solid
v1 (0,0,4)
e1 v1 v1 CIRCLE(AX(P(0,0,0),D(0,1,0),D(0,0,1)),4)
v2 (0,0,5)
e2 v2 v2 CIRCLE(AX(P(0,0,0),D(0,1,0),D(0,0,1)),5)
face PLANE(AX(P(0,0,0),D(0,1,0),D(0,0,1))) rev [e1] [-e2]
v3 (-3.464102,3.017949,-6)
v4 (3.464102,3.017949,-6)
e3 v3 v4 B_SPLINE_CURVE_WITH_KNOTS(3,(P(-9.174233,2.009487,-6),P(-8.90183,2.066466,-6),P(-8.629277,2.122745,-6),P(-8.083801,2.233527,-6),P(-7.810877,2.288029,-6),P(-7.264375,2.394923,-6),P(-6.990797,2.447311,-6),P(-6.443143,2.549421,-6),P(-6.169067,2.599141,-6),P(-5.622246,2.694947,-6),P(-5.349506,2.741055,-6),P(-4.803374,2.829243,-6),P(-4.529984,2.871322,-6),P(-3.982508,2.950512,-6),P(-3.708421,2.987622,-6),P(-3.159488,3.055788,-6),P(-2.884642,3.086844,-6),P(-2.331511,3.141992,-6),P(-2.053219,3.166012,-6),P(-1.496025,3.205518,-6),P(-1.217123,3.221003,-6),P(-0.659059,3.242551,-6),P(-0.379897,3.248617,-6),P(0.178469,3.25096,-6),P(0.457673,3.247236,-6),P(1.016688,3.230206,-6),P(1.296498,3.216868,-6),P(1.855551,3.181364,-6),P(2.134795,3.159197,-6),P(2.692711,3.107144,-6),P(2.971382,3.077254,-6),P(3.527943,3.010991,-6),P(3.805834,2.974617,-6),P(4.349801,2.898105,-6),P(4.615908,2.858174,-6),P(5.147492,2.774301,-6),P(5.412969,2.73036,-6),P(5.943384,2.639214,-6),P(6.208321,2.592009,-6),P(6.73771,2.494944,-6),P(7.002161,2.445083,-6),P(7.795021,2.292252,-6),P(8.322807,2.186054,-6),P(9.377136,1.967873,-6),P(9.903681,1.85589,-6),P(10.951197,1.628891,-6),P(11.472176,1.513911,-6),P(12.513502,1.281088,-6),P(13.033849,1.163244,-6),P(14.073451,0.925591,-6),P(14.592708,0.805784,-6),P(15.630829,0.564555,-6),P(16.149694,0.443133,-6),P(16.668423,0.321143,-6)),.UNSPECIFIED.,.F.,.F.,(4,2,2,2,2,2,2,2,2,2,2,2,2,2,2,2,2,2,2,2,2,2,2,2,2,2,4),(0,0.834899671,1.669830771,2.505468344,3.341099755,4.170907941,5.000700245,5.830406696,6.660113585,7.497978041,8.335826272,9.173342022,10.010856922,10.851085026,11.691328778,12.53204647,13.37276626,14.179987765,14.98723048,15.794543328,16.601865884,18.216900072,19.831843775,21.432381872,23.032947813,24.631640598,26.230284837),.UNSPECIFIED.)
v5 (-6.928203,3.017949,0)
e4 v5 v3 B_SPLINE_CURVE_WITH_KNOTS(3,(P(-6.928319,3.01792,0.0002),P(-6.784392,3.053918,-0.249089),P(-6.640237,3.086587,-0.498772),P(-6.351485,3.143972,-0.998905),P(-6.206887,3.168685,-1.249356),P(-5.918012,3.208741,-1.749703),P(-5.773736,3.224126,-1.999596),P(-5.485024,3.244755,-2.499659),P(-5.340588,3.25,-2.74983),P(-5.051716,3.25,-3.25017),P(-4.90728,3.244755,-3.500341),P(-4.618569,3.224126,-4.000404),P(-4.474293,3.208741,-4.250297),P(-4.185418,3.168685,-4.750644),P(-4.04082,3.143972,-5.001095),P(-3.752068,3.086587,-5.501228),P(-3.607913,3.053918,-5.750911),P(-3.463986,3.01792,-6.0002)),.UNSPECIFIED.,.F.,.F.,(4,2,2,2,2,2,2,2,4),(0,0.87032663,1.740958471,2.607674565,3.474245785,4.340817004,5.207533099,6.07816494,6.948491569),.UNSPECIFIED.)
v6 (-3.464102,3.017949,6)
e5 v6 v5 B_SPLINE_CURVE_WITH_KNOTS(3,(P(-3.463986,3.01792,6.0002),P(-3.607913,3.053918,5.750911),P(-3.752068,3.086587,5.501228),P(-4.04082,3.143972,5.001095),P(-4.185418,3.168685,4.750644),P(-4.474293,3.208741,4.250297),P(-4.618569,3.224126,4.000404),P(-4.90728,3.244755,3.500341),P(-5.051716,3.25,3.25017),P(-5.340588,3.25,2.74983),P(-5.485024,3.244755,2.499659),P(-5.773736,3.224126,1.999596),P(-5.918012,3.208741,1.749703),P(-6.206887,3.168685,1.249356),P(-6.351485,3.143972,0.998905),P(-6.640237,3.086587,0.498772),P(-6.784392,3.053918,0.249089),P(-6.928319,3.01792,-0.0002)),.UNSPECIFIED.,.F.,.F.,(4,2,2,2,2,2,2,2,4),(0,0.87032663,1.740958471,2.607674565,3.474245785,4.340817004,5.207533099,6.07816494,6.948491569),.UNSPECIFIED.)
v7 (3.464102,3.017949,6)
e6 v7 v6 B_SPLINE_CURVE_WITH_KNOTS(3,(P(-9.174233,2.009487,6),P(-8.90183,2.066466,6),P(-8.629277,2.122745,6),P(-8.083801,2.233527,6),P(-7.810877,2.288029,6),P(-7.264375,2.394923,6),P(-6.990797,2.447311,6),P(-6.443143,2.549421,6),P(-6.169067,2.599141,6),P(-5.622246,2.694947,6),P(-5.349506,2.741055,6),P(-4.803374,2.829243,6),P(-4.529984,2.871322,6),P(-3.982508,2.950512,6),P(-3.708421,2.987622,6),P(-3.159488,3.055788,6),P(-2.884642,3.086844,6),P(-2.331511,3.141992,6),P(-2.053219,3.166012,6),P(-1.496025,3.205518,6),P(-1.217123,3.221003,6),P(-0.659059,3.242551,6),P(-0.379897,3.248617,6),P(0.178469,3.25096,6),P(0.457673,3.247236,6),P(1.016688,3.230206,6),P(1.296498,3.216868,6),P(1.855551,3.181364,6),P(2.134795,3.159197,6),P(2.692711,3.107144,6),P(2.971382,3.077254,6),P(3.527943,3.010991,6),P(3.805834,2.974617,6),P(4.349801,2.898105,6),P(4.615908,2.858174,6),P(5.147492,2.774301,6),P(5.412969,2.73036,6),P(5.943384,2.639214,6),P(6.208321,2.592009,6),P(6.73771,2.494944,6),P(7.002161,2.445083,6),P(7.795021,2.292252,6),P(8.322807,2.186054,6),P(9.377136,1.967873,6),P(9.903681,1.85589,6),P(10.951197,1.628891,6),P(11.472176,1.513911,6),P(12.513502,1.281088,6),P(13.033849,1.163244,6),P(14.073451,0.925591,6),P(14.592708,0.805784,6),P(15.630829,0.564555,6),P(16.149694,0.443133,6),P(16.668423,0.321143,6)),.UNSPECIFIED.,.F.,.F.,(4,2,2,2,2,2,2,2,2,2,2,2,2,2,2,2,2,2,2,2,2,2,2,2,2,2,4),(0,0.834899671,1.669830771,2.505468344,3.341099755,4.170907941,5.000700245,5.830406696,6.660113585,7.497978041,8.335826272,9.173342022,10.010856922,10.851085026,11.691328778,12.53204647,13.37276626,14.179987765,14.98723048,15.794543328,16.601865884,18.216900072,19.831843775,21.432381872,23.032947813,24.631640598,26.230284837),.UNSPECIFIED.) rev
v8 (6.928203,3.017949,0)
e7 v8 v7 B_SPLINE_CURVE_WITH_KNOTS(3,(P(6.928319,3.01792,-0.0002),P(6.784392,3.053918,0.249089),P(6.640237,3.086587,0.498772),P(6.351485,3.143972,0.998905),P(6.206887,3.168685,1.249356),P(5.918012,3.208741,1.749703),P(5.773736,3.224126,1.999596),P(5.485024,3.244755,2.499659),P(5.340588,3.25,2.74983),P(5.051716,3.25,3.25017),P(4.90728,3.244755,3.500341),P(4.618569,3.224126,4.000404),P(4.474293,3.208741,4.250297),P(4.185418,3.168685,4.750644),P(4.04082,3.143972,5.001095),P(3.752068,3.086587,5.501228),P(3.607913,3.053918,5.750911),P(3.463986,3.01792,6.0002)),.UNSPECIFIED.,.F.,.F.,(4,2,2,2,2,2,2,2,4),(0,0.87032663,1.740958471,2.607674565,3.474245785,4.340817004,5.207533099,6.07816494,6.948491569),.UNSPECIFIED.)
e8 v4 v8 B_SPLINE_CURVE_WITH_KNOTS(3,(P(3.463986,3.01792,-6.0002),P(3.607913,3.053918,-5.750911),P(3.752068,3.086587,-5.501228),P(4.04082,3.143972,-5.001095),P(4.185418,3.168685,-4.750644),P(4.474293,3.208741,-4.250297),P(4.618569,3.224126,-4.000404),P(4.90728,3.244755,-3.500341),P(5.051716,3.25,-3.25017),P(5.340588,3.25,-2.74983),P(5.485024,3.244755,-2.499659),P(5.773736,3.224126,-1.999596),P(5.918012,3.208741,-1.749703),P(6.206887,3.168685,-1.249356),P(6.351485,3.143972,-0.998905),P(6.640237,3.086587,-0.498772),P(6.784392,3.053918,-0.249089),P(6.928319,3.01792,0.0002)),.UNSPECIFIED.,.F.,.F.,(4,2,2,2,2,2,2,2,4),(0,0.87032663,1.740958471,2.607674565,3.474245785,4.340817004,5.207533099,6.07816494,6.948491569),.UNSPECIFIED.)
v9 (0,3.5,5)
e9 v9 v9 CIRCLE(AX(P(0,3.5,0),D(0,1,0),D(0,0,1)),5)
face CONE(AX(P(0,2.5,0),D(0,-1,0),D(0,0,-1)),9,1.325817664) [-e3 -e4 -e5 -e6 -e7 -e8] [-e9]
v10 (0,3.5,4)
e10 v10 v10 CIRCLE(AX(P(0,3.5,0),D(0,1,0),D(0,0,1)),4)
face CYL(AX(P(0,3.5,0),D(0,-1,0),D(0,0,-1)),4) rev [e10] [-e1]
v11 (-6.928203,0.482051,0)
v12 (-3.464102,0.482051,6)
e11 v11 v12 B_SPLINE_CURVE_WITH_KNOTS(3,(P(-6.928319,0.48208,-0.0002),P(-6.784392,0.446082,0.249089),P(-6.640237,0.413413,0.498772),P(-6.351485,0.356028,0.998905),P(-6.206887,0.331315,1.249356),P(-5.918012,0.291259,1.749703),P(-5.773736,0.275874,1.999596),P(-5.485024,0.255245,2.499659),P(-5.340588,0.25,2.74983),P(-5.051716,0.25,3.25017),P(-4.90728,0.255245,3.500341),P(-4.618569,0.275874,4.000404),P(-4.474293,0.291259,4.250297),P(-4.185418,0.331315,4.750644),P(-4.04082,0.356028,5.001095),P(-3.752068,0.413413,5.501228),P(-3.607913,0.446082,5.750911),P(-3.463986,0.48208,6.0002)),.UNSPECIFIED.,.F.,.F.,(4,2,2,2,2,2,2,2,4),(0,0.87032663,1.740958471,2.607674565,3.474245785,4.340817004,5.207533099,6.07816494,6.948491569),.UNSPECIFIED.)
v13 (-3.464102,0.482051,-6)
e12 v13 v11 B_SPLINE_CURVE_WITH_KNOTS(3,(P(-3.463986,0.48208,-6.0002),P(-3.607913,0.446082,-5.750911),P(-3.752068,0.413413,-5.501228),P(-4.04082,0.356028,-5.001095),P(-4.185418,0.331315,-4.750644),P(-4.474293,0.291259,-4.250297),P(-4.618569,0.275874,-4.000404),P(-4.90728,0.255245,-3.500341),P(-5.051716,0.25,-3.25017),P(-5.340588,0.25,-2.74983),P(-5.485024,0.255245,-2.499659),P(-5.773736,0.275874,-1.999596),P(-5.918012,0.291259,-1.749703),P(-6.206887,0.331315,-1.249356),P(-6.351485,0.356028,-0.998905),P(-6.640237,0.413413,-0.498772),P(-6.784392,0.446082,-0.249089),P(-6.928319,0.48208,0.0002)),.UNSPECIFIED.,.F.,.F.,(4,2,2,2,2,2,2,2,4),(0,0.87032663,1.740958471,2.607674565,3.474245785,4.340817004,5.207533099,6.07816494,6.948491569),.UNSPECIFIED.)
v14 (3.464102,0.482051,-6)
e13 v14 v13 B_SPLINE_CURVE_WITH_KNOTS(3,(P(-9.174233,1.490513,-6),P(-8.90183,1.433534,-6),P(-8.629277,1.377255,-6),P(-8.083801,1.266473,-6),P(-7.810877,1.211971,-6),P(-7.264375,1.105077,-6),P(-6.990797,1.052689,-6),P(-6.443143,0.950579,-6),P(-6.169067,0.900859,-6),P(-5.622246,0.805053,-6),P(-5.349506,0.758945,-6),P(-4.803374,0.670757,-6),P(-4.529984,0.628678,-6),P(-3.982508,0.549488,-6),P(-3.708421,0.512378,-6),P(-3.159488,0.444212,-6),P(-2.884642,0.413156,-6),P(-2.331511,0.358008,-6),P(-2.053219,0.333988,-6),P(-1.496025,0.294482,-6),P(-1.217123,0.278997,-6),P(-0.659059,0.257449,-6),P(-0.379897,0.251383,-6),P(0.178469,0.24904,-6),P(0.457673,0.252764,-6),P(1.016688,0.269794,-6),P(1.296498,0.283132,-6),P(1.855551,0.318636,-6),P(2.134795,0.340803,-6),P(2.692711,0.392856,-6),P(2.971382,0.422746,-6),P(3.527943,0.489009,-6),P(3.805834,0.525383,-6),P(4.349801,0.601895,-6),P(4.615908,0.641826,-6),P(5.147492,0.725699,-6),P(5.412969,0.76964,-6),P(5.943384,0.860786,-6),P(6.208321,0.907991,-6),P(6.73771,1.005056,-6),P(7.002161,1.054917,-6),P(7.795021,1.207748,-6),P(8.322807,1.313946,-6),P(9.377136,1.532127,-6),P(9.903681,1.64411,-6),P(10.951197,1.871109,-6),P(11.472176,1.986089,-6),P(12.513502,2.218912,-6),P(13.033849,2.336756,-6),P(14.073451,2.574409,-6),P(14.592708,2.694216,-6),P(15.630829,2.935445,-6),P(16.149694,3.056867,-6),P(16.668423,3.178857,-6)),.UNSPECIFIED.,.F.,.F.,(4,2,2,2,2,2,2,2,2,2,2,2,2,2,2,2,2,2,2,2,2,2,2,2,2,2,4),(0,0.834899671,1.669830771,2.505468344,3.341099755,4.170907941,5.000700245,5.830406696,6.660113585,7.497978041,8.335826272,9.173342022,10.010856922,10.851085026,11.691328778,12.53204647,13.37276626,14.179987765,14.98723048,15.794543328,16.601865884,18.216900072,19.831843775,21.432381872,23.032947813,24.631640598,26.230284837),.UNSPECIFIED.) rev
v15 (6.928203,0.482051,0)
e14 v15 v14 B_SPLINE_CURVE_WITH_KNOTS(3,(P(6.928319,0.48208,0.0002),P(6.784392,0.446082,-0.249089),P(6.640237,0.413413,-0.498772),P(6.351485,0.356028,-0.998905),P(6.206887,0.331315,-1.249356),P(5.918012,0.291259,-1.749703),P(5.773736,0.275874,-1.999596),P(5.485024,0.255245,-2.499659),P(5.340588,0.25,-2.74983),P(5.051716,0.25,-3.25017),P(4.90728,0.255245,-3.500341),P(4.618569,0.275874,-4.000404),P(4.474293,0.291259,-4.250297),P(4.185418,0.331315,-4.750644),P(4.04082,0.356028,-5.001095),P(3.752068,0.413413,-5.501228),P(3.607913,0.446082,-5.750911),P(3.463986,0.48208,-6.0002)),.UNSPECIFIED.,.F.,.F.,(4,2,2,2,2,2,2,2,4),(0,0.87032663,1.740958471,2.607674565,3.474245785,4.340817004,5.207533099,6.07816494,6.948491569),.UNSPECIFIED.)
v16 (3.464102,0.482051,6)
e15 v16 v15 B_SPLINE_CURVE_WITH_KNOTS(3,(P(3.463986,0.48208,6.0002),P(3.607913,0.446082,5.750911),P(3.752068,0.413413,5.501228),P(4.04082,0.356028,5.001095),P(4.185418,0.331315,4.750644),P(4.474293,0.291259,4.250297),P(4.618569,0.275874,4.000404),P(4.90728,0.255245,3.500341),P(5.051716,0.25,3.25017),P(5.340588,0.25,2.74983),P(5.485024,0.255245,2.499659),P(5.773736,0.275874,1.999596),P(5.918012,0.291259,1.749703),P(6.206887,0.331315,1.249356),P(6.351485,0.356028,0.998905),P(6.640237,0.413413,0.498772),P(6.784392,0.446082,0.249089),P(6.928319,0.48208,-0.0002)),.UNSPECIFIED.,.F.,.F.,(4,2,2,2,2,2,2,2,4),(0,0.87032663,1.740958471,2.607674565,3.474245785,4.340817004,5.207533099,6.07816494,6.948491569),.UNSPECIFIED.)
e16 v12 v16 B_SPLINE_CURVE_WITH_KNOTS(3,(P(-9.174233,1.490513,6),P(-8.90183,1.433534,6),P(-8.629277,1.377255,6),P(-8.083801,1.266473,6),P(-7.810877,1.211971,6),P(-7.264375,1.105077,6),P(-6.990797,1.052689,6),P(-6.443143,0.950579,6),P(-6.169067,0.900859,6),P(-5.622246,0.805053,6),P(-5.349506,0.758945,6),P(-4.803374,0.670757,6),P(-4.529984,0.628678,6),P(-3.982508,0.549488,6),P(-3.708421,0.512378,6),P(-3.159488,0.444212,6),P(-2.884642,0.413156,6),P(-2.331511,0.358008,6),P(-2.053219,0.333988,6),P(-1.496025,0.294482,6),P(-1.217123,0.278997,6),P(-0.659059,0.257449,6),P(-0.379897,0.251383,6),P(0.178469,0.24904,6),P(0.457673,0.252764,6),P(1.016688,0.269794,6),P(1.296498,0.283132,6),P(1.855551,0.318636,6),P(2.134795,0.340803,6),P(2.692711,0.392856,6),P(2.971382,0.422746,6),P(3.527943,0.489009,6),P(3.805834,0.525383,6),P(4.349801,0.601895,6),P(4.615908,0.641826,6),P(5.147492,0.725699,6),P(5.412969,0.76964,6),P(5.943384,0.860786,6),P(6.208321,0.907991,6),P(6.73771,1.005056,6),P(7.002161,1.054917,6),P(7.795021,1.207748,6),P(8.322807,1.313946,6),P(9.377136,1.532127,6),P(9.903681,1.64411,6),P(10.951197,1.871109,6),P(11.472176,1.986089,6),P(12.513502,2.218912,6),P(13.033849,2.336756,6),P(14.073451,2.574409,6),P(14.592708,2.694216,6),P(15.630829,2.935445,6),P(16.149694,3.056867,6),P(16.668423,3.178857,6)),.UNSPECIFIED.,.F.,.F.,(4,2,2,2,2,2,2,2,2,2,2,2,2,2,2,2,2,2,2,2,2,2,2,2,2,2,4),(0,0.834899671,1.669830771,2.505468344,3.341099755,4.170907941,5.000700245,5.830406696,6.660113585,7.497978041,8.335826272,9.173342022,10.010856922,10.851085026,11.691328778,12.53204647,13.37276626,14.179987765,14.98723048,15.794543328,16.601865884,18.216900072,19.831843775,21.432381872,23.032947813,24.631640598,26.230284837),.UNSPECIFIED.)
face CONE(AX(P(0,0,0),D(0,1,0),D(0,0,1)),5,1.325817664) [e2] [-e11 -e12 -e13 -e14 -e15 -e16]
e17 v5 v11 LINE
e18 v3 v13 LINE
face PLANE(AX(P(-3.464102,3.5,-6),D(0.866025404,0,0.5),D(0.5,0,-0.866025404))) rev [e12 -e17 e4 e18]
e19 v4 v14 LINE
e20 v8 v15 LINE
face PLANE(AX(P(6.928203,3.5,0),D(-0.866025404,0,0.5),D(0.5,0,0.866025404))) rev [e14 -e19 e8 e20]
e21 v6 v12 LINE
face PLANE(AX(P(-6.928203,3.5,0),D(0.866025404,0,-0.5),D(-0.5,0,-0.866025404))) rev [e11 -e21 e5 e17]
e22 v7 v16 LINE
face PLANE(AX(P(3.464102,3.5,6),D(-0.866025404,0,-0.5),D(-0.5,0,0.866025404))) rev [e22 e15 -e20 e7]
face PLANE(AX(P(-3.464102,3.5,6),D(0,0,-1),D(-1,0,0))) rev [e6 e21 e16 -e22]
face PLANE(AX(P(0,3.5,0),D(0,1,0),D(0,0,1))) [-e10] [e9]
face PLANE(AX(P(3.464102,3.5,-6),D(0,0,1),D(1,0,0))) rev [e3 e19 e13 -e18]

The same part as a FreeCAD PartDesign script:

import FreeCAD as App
import Part
import Sketcher

V = App.Vector
Q = App.Units.Quantity


def add_polygon(sketch, points):
    """Adds a closed chain of lines whose ends are joined by coincident constraints."""
    first, n = sketch.GeometryCount, len(points)
    for a, b in zip(points, points[1:] + points[:1]):
        sketch.addGeometry(Part.LineSegment(App.Vector(*a, 0), App.Vector(*b, 0)), False)
    for i in range(n):
        sketch.addConstraint(Sketcher.Constraint("Coincident", first + i, 2, first + (i + 1) % n, 1))

doc = App.newDocument("Part")
body = doc.addObject("PartDesign::Body", "Body")

sketch1 = body.newObject("Sketcher::SketchObject", "Sketch")
sketch1.AttachmentSupport = (doc.getObject("XZ_Plane"), [""])
sketch1.MapMode = "FlatFace"
add_polygon(sketch1, [(6.928203, 0), (3.464102, -6), (-3.464102, -6), (-6.928203, 0), (-3.464102, 6), (3.464102, 6)])
sketch1.addGeometry(Part.Circle(V(0, 0, 0), V(0, 0, 1), 4), False)
sketch1.addConstraint(Sketcher.Constraint("Horizontal", 1))
sketch1.addConstraint(Sketcher.Constraint("Horizontal", 4))
sketch1.addConstraint(Sketcher.Constraint("Coincident", 6, 3, -1, 1))
sketch1.addConstraint(Sketcher.Constraint("Symmetric", 0, 2, 3, 2, -1, 1))
sketch1.addConstraint(Sketcher.Constraint("Symmetric", 2, 2, 5, 2, -1, 1))
sketch1.addConstraint(Sketcher.Constraint("PointOnObject", 2, 2, -1))
sketch1.addConstraint(Sketcher.Constraint("Parallel", 2, 5))
sketch1.addConstraint(Sketcher.Constraint("Vertical", 1, 2, 3, 2))
sketch1.addConstraint(Sketcher.Constraint("Diameter", 6, 8.0))
sketch1.addConstraint(Sketcher.Constraint("Angle", 0, Q("-120 deg")))
sketch1.addConstraint(Sketcher.Constraint("DistanceY", 0, 2, -1, 1, 6.0))
sketch1.addConstraint(Sketcher.Constraint("DistanceX", -1, 1, 0, 2, 3.464102))
pad1 = body.newObject("PartDesign::Pad", "Pad")
pad1.Profile = sketch1
pad1.Length = 3.5
pad1.Reversed = True

sketch2 = body.newObject("Sketcher::SketchObject", "Sketch001")
sketch2.AttachmentSupport = (doc.getObject("YZ_Plane"), [""])
sketch2.MapMode = "FlatFace"
add_polygon(sketch2, [(3.5, 5), (3.5, 9), (2.5, 9)])
add_polygon(sketch2, [(0, 5), (1, 9), (0, 9)])
sketch2.addConstraint(Sketcher.Constraint("Vertical", 0))
sketch2.addConstraint(Sketcher.Constraint("Horizontal", 1))
sketch2.addConstraint(Sketcher.Constraint("Horizontal", 4))
sketch2.addConstraint(Sketcher.Constraint("Vertical", 5))
sketch2.addConstraint(Sketcher.Constraint("PointOnObject", 4, 2, -2))
sketch2.addConstraint(Sketcher.Constraint("Horizontal", 1, 2, 3, 2))
sketch2.addConstraint(Sketcher.Constraint("Horizontal", 2, 2, 5, 2))
sketch2.addConstraint(Sketcher.Constraint("Equal", 1, 4))
sketch2.addConstraint(Sketcher.Constraint("DistanceX", 1, 2, 1, 1, 1.0))
sketch2.addConstraint(Sketcher.Constraint("DistanceY", 0, 1, 0, 2, 4.0))
sketch2.addConstraint(Sketcher.Constraint("DistanceY", -1, 1, 0, 2, 9.0))
sketch2.addConstraint(Sketcher.Constraint("DistanceX", -1, 1, 0, 2, 3.5))
groove = body.newObject("PartDesign::Groove", "Groove")
groove.Profile = sketch2
groove.ReferenceAxis = (sketch2, ["H_Axis"])
groove.Angle = 360

doc.recompute()
